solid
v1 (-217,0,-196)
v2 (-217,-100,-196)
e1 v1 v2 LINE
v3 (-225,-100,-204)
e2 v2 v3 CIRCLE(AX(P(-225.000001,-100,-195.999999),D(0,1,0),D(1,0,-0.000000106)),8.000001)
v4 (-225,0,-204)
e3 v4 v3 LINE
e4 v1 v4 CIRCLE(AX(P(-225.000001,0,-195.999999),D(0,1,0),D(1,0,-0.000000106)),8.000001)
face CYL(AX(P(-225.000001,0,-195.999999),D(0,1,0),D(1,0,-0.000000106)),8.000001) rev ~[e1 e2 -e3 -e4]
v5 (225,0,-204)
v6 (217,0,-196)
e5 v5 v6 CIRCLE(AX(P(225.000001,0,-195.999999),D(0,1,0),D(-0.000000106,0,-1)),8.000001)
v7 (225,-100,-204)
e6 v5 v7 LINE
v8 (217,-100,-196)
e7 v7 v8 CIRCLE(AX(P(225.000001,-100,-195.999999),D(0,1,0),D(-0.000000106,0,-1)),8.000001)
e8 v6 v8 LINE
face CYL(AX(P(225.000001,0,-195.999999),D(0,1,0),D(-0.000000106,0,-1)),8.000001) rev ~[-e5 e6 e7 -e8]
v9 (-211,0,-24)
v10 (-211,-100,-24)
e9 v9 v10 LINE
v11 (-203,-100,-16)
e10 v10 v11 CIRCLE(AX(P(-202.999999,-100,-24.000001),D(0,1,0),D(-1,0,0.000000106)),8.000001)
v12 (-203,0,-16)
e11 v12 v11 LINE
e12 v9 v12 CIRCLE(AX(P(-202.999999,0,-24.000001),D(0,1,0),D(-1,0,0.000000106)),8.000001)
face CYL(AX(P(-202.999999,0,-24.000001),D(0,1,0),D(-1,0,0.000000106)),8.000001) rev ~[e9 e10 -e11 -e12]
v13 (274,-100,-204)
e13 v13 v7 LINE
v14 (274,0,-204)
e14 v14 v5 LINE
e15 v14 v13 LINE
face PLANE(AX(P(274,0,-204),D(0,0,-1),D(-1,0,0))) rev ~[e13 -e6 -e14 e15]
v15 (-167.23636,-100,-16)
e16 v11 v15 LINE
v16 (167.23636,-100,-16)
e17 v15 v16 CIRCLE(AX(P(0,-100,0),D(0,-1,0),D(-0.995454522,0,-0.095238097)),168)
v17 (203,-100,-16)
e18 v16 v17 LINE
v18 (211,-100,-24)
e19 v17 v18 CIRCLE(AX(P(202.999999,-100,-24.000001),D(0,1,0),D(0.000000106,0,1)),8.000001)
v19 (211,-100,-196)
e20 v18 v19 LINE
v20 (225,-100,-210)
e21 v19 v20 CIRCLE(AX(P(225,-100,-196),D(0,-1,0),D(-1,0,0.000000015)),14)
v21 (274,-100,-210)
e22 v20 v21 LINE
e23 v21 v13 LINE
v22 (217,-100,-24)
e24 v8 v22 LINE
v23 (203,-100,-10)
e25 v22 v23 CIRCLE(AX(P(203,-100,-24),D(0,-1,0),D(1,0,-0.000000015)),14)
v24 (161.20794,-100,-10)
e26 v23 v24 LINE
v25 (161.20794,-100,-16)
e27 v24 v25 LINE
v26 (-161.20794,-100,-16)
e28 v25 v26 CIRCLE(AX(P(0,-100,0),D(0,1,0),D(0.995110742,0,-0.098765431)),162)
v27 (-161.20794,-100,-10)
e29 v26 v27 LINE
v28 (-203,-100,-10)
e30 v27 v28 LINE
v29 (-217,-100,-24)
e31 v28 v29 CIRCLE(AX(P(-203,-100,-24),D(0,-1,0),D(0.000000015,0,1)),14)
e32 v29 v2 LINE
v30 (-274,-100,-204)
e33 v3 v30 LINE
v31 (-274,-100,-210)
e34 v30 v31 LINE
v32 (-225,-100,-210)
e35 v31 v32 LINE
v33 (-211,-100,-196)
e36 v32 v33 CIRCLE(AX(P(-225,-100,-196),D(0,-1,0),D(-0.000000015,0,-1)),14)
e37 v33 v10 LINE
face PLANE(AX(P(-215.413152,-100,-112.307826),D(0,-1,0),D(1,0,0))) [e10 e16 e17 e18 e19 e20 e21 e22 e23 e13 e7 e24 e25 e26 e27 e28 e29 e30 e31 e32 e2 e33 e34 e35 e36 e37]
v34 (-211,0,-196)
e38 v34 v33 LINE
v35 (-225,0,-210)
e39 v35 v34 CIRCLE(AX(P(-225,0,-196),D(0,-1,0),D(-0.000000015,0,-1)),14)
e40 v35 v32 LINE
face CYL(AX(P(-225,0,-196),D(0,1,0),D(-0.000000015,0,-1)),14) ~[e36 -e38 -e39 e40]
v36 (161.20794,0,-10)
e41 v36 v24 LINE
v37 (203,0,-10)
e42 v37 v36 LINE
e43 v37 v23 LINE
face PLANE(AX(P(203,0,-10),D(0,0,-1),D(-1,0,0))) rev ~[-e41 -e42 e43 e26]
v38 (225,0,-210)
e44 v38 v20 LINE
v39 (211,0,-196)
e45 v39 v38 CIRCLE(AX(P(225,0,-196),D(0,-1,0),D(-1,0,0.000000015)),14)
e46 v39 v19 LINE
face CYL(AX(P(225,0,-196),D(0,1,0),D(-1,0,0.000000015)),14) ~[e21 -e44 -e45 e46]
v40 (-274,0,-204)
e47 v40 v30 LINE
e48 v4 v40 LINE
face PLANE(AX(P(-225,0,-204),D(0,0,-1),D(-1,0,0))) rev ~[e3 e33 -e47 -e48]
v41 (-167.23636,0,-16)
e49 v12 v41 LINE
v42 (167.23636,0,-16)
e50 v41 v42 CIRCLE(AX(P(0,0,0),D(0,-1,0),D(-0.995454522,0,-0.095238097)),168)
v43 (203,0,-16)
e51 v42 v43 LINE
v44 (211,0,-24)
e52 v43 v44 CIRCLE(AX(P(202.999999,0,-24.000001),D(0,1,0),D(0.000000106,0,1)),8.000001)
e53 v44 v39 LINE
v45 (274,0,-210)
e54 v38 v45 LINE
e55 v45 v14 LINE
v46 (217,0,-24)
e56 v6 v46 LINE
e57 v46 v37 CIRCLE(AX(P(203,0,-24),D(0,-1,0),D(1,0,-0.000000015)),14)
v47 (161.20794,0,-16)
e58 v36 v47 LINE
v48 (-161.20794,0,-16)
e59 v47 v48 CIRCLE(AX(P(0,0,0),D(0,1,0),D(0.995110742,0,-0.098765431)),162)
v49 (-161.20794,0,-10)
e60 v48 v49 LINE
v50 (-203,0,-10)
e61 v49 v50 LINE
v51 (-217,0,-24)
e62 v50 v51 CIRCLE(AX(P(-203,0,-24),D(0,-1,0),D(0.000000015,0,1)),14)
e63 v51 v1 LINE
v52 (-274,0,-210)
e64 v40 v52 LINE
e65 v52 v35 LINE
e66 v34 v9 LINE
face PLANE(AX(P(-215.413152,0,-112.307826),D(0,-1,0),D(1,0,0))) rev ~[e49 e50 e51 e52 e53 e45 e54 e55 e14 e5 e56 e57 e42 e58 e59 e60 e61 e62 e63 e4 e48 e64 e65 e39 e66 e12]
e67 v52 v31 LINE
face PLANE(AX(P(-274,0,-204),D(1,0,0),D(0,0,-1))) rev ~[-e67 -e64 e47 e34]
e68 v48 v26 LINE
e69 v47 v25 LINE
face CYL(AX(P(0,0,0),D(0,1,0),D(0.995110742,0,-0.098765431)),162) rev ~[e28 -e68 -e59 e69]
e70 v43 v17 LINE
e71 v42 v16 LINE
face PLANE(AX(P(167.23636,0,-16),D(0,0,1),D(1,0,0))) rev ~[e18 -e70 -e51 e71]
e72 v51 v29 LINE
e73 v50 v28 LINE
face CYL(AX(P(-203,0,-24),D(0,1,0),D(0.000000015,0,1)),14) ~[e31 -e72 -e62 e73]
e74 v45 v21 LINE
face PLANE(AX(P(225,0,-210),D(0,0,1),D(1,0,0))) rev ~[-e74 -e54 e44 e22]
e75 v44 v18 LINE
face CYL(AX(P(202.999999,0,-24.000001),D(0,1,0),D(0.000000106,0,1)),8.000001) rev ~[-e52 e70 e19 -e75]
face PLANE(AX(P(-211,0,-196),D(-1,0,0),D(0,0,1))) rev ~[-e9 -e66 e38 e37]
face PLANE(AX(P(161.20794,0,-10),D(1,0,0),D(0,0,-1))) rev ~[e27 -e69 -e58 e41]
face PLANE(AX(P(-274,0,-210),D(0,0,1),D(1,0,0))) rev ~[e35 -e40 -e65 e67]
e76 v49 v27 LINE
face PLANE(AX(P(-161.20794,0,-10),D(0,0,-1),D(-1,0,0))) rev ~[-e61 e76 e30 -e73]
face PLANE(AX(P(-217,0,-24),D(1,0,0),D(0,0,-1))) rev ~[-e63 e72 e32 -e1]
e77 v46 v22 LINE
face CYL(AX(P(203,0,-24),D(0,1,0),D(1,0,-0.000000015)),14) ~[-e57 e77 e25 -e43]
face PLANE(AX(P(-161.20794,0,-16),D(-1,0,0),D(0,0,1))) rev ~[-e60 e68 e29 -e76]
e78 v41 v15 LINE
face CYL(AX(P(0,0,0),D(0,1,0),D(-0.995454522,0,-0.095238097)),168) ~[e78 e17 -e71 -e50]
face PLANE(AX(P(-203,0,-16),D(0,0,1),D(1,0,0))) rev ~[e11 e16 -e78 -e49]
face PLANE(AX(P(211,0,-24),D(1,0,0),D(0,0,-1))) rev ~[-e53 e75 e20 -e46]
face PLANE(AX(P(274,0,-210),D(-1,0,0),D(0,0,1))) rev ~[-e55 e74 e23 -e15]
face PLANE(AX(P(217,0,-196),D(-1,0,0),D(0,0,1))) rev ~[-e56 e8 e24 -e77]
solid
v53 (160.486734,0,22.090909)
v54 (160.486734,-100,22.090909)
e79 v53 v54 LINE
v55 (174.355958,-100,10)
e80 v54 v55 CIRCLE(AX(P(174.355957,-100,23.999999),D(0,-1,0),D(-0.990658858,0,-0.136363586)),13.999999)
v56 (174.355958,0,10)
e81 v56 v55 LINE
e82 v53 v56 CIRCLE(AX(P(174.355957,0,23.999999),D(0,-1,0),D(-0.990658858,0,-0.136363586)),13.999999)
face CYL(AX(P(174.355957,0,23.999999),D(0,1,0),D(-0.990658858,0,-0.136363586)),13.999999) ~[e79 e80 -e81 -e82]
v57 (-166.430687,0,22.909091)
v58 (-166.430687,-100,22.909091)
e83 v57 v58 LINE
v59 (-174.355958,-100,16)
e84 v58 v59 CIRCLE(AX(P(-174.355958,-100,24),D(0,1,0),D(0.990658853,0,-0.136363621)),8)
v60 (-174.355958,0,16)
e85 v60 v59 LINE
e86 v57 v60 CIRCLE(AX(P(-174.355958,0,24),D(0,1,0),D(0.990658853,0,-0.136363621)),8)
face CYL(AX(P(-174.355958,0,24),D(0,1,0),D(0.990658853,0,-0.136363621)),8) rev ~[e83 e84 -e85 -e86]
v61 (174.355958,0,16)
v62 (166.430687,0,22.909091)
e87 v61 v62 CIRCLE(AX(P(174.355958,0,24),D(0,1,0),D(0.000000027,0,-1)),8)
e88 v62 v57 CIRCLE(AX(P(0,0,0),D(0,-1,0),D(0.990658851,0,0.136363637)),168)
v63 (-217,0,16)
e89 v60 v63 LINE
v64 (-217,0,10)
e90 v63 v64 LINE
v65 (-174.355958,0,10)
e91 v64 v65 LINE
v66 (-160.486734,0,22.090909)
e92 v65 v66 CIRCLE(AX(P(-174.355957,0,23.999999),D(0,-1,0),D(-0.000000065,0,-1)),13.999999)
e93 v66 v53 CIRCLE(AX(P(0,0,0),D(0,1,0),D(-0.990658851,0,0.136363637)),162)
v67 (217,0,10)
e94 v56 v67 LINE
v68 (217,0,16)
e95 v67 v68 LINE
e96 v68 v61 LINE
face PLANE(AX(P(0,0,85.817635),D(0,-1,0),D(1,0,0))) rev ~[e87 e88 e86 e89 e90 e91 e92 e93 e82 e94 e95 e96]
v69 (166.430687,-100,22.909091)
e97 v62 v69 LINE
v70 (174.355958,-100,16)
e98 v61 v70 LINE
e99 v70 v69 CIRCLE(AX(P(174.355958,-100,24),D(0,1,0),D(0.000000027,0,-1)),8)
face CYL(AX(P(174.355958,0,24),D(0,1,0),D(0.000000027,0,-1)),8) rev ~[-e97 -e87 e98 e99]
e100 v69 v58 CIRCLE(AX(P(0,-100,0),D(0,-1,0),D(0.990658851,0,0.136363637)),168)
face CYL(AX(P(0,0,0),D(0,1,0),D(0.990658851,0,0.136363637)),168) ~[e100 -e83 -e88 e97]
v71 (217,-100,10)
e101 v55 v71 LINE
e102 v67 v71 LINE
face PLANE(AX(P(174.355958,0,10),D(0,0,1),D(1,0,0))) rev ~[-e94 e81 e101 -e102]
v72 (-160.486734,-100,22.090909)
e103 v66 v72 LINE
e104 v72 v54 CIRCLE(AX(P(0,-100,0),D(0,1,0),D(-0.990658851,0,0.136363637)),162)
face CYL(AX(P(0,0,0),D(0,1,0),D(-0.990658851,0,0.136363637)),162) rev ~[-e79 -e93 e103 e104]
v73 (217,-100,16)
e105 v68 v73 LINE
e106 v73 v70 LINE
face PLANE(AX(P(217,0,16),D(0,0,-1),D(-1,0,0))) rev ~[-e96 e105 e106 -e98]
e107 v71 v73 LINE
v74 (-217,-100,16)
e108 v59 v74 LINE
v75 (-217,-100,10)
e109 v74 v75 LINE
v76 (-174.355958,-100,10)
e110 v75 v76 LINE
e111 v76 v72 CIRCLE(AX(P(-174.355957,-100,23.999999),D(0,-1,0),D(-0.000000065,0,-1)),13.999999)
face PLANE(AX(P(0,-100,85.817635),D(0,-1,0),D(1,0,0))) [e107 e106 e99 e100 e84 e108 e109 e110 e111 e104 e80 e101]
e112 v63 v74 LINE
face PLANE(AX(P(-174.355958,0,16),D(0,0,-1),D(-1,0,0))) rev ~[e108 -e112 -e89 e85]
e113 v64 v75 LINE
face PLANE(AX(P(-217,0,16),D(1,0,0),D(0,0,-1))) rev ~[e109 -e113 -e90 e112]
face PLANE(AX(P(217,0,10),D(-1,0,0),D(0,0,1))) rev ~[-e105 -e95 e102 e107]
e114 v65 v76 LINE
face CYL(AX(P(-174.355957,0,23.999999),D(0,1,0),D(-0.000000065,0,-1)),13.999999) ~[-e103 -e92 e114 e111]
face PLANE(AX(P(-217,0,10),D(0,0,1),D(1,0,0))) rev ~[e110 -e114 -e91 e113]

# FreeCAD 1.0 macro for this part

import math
import FreeCAD as App
import Part
import Sketcher

V = App.Vector

doc = App.newDocument("Part")
params = doc.addObject("Spreadsheet::Sheet", "Params")
for row, (alias, value) in enumerate([
    ("sketch1_radius", "162 mm"),
    ("sketch1_radius2", "13.999999 mm"),
    ("sketch1_radius3", "8 mm"),
    ("sketch1_width", "49 mm"),
    ("sketch1_height", "172 mm"),
    ("pad1_length", "100 mm"),
], start=1):
    params.set(f"A{row}", alias)
    params.set(f"B{row}", "=" + value)
    params.setAlias(f"B{row}", alias)

body = doc.addObject("PartDesign::Body", "Body")
body.AllowCompound = True

sketch1 = body.newObject("Sketcher::SketchObject", "Sketch")
sketch1.AttachmentSupport = (doc.getObject("XZ_Plane"), [""])
sketch1.MapMode = "FlatFace"
sketch1.addGeometry(Part.ArcOfCircle(Part.Circle(V(0, 0, 0), V(0, 0, 1), 162), math.radians(8), math.radians(172)), False)
sketch1.addGeometry(Part.ArcOfCircle(Part.Circle(V(174, 24, 0), V(0, 0, 1), 14), math.radians(-172), math.radians(-90)), False)
sketch1.addGeometry(Part.LineSegment(V(174, 10, 0), V(217, 10, 0)), False)
sketch1.addGeometry(Part.LineSegment(V(217, 10, 0), V(217, 16, 0)), False)
sketch1.addGeometry(Part.LineSegment(V(217, 16, 0), V(174, 16, 0)), False)
sketch1.addGeometry(Part.ArcOfCircle(Part.Circle(V(174, 24, 0), V(0, 0, 1), 8), math.radians(-172), math.radians(-90)), False)
sketch1.addGeometry(Part.ArcOfCircle(Part.Circle(V(0, 0, 0), V(0, 0, 1), 168), math.radians(8), math.radians(172)), False)
sketch1.addGeometry(Part.ArcOfCircle(Part.Circle(V(-174, 24, 0), V(0, 0, 1), 8), math.radians(-90), math.radians(-8)), False)
sketch1.addGeometry(Part.LineSegment(V(-174, 16, 0), V(-217, 16, 0)), False)
sketch1.addGeometry(Part.LineSegment(V(-217, 16, 0), V(-217, 10, 0)), False)
sketch1.addGeometry(Part.LineSegment(V(-217, 10, 0), V(-174, 10, 0)), False)
sketch1.addGeometry(Part.ArcOfCircle(Part.Circle(V(-174, 24, 0), V(0, 0, 1), 14), math.radians(-90), math.radians(-8)), False)
sketch1.addGeometry(Part.LineSegment(V(-161, -10, 0), V(-203, -10, 0)), False)
sketch1.addGeometry(Part.ArcOfCircle(Part.Circle(V(-203, -24, 0), V(0, 0, 1), 14), math.radians(90), math.radians(180)), False)
sketch1.addGeometry(Part.LineSegment(V(-217, -24, 0), V(-217, -196, 0)), False)
sketch1.addGeometry(Part.ArcOfCircle(Part.Circle(V(-225, -196, 0), V(0, 0, 1), 8), math.radians(-90), math.radians(0)), False)
sketch1.addGeometry(Part.LineSegment(V(-225, -204, 0), V(-274, -204, 0)), False)
sketch1.addGeometry(Part.LineSegment(V(-274, -204, 0), V(-274, -210, 0)), False)
sketch1.addGeometry(Part.LineSegment(V(-274, -210, 0), V(-225, -210, 0)), False)
sketch1.addGeometry(Part.ArcOfCircle(Part.Circle(V(-225, -196, 0), V(0, 0, 1), 14), math.radians(-90), math.radians(0)), False)
sketch1.addGeometry(Part.LineSegment(V(-211, -196, 0), V(-211, -24, 0)), False)
sketch1.addGeometry(Part.ArcOfCircle(Part.Circle(V(-203, -24, 0), V(0, 0, 1), 8), math.radians(90), math.radians(180)), False)
sketch1.addGeometry(Part.LineSegment(V(-203, -16, 0), V(-167, -16, 0)), False)
sketch1.addGeometry(Part.ArcOfCircle(Part.Circle(V(0, 0, 0), V(0, 0, 1), 168), math.radians(-175), math.radians(-5)), False)
sketch1.addGeometry(Part.LineSegment(V(167, -16, 0), V(203, -16, 0)), False)
sketch1.addGeometry(Part.ArcOfCircle(Part.Circle(V(203, -24, 0), V(0, 0, 1), 8), math.radians(0), math.radians(90)), False)
sketch1.addGeometry(Part.LineSegment(V(211, -24, 0), V(211, -196, 0)), False)
sketch1.addGeometry(Part.ArcOfCircle(Part.Circle(V(225, -196, 0), V(0, 0, 1), 14), math.radians(180), math.radians(270)), False)
sketch1.addGeometry(Part.LineSegment(V(225, -210, 0), V(274, -210, 0)), False)
sketch1.addGeometry(Part.LineSegment(V(274, -210, 0), V(274, -204, 0)), False)
sketch1.addGeometry(Part.LineSegment(V(274, -204, 0), V(225, -204, 0)), False)
sketch1.addGeometry(Part.ArcOfCircle(Part.Circle(V(225, -196, 0), V(0, 0, 1), 8), math.radians(-180), math.radians(-90)), False)
sketch1.addGeometry(Part.LineSegment(V(217, -196, 0), V(217, -24, 0)), False)
sketch1.addGeometry(Part.ArcOfCircle(Part.Circle(V(203, -24, 0), V(0, 0, 1), 14), math.radians(0), math.radians(90)), False)
sketch1.addGeometry(Part.LineSegment(V(203, -10, 0), V(161, -10, 0)), False)
sketch1.addGeometry(Part.LineSegment(V(161, -10, 0), V(161, -16, 0)), False)
sketch1.addGeometry(Part.ArcOfCircle(Part.Circle(V(0, 0, 0), V(0, 0, 1), 162), math.radians(-174), math.radians(-6)), False)
sketch1.addGeometry(Part.LineSegment(V(-161, -16, 0), V(-161, -10, 0)), False)
sketch1.addConstraint(Sketcher.Constraint("Tangent", 0, 1, 1, 1))
sketch1.addConstraint(Sketcher.Constraint("Tangent", 1, 2, 2, 1))
sketch1.addConstraint(Sketcher.Constraint("Coincident", 2, 2, 3, 1))
sketch1.addConstraint(Sketcher.Constraint("Coincident", 3, 2, 4, 1))
sketch1.addConstraint(Sketcher.Constraint("Tangent", 4, 2, 5, 2))
sketch1.addConstraint(Sketcher.Constraint("Tangent", 5, 1, 6, 1))
sketch1.addConstraint(Sketcher.Constraint("Tangent", 6, 2, 7, 2))
sketch1.addConstraint(Sketcher.Constraint("Tangent", 7, 1, 8, 1))
sketch1.addConstraint(Sketcher.Constraint("Coincident", 8, 2, 9, 1))
sketch1.addConstraint(Sketcher.Constraint("Coincident", 9, 2, 10, 1))
sketch1.addConstraint(Sketcher.Constraint("Tangent", 10, 2, 11, 1))
sketch1.addConstraint(Sketcher.Constraint("Tangent", 11, 2, 0, 2))
sketch1.addConstraint(Sketcher.Constraint("Tangent", 12, 2, 13, 1))
sketch1.addConstraint(Sketcher.Constraint("Tangent", 13, 2, 14, 1))
sketch1.addConstraint(Sketcher.Constraint("Tangent", 14, 2, 15, 2))
sketch1.addConstraint(Sketcher.Constraint("Tangent", 15, 1, 16, 1))
sketch1.addConstraint(Sketcher.Constraint("Coincident", 16, 2, 17, 1))
sketch1.addConstraint(Sketcher.Constraint("Coincident", 17, 2, 18, 1))
sketch1.addConstraint(Sketcher.Constraint("Tangent", 18, 2, 19, 1))
sketch1.addConstraint(Sketcher.Constraint("Tangent", 19, 2, 20, 1))
sketch1.addConstraint(Sketcher.Constraint("Tangent", 20, 2, 21, 2))
sketch1.addConstraint(Sketcher.Constraint("Tangent", 21, 1, 22, 1))
sketch1.addConstraint(Sketcher.Constraint("Coincident", 22, 2, 23, 1))
sketch1.addConstraint(Sketcher.Constraint("Coincident", 23, 2, 24, 1))
sketch1.addConstraint(Sketcher.Constraint("Tangent", 24, 2, 25, 2))
sketch1.addConstraint(Sketcher.Constraint("Tangent", 25, 1, 26, 1))
sketch1.addConstraint(Sketcher.Constraint("Tangent", 26, 2, 27, 1))
sketch1.addConstraint(Sketcher.Constraint("Tangent", 27, 2, 28, 1))
sketch1.addConstraint(Sketcher.Constraint("Coincident", 28, 2, 29, 1))
sketch1.addConstraint(Sketcher.Constraint("Coincident", 29, 2, 30, 1))
sketch1.addConstraint(Sketcher.Constraint("Tangent", 30, 2, 31, 2))
sketch1.addConstraint(Sketcher.Constraint("Tangent", 31, 1, 32, 1))
sketch1.addConstraint(Sketcher.Constraint("Tangent", 32, 2, 33, 1))
sketch1.addConstraint(Sketcher.Constraint("Tangent", 33, 2, 34, 1))
sketch1.addConstraint(Sketcher.Constraint("Coincident", 34, 2, 35, 1))
sketch1.addConstraint(Sketcher.Constraint("Coincident", 35, 2, 36, 2))
sketch1.addConstraint(Sketcher.Constraint("Coincident", 36, 1, 37, 1))
sketch1.addConstraint(Sketcher.Constraint("Coincident", 37, 2, 12, 1))
sketch1.addConstraint(Sketcher.Constraint("Horizontal", 2))
sketch1.addConstraint(Sketcher.Constraint("Vertical", 3))
sketch1.addConstraint(Sketcher.Constraint("Horizontal", 4))
sketch1.addConstraint(Sketcher.Constraint("Horizontal", 8))
sketch1.addConstraint(Sketcher.Constraint("Vertical", 9))
sketch1.addConstraint(Sketcher.Constraint("Horizontal", 10))
sketch1.addConstraint(Sketcher.Constraint("Horizontal", 12))
sketch1.addConstraint(Sketcher.Constraint("Vertical", 14))
sketch1.addConstraint(Sketcher.Constraint("Horizontal", 16))
sketch1.addConstraint(Sketcher.Constraint("Vertical", 17))
sketch1.addConstraint(Sketcher.Constraint("Horizontal", 18))
sketch1.addConstraint(Sketcher.Constraint("Vertical", 20))
sketch1.addConstraint(Sketcher.Constraint("Horizontal", 22))
sketch1.addConstraint(Sketcher.Constraint("Horizontal", 24))
sketch1.addConstraint(Sketcher.Constraint("Vertical", 26))
sketch1.addConstraint(Sketcher.Constraint("Horizontal", 28))
sketch1.addConstraint(Sketcher.Constraint("Vertical", 29))
sketch1.addConstraint(Sketcher.Constraint("Horizontal", 30))
sketch1.addConstraint(Sketcher.Constraint("Vertical", 32))
sketch1.addConstraint(Sketcher.Constraint("Horizontal", 34))
sketch1.addConstraint(Sketcher.Constraint("Vertical", 35))
sketch1.addConstraint(Sketcher.Constraint("Vertical", 37))
sketch1.addConstraint(Sketcher.Constraint("Coincident", 0, 3, -1, 1))
sketch1.addConstraint(Sketcher.Constraint("Coincident", 6, 3, -1, 1))
sketch1.addConstraint(Sketcher.Constraint("Coincident", 23, 3, -1, 1))
sketch1.addConstraint(Sketcher.Constraint("Coincident", 36, 3, -1, 1))
sketch1.addConstraint(Sketcher.Constraint("Coincident", 5, 3, 1, 3))
sketch1.addConstraint(Sketcher.Constraint("Coincident", 11, 3, 7, 3))
sketch1.addConstraint(Sketcher.Constraint("Coincident", 19, 3, 15, 3))
sketch1.addConstraint(Sketcher.Constraint("Coincident", 21, 3, 13, 3))
sketch1.addConstraint(Sketcher.Constraint("Coincident", 31, 3, 27, 3))
sketch1.addConstraint(Sketcher.Constraint("Coincident", 33, 3, 25, 3))
sketch1.addConstraint(Sketcher.Constraint("Equal", 5, 7))
sketch1.addConstraint(Sketcher.Constraint("Equal", 11, 13))
sketch1.addConstraint(Sketcher.Constraint("Equal", 7, 15))
sketch1.addConstraint(Sketcher.Constraint("Equal", 13, 19))
sketch1.addConstraint(Sketcher.Constraint("Equal", 6, 23))
sketch1.addConstraint(Sketcher.Constraint("Equal", 21, 25))
sketch1.addConstraint(Sketcher.Constraint("Equal", 19, 27))
sketch1.addConstraint(Sketcher.Constraint("Equal", 25, 31))
sketch1.addConstraint(Sketcher.Constraint("Equal", 0, 36))
sketch1.addConstraint(Sketcher.Constraint("Symmetric", 13, 3, 25, 3, -2))
sketch1.addConstraint(Sketcher.Constraint("Symmetric", 3, 2, 8, 2, -2))
sketch1.addConstraint(Sketcher.Constraint("Symmetric", 17, 2, 28, 2, -2))
sketch1.addConstraint(Sketcher.Constraint("Horizontal", 24, 2, 35, 2))
sketch1.addConstraint(Sketcher.Constraint("Horizontal", 35, 2, 36, 1))
sketch1.addConstraint(Sketcher.Constraint("Vertical", 9, 2, 13, 2))
sketch1.addConstraint(Sketcher.Constraint("Radius", 0, 162.0))
sketch1.addConstraint(Sketcher.Constraint("Radius", 1, 13.999999))
sketch1.addConstraint(Sketcher.Constraint("Radius", 5, 8.0))
sketch1.addConstraint(Sketcher.Constraint("DistanceX", 16, 2, 16, 1, 49.0))
sketch1.addConstraint(Sketcher.Constraint("DistanceY", 14, 2, 14, 1, 172.0))
sketch1.addConstraint(Sketcher.Constraint("DistanceY", -1, 1, 1, 3, 23.999999))
sketch1.addConstraint(Sketcher.Constraint("DistanceX", 13, 3, -1, 1, 203.0))
sketch1.addConstraint(Sketcher.Constraint("DistanceY", 13, 3, -1, 1, 24.0))
sketch1.setExpression("Constraints[85]", "Params.sketch1_radius")
sketch1.setExpression("Constraints[86]", "Params.sketch1_radius2")
sketch1.setExpression("Constraints[87]", "Params.sketch1_radius3")
sketch1.setExpression("Constraints[88]", "Params.sketch1_width")
sketch1.setExpression("Constraints[89]", "Params.sketch1_height")
pad1 = body.newObject("PartDesign::Pad", "Pad")
pad1.Profile = sketch1
pad1.setExpression("Length", "Params.pad1_length")

doc.recompute()
